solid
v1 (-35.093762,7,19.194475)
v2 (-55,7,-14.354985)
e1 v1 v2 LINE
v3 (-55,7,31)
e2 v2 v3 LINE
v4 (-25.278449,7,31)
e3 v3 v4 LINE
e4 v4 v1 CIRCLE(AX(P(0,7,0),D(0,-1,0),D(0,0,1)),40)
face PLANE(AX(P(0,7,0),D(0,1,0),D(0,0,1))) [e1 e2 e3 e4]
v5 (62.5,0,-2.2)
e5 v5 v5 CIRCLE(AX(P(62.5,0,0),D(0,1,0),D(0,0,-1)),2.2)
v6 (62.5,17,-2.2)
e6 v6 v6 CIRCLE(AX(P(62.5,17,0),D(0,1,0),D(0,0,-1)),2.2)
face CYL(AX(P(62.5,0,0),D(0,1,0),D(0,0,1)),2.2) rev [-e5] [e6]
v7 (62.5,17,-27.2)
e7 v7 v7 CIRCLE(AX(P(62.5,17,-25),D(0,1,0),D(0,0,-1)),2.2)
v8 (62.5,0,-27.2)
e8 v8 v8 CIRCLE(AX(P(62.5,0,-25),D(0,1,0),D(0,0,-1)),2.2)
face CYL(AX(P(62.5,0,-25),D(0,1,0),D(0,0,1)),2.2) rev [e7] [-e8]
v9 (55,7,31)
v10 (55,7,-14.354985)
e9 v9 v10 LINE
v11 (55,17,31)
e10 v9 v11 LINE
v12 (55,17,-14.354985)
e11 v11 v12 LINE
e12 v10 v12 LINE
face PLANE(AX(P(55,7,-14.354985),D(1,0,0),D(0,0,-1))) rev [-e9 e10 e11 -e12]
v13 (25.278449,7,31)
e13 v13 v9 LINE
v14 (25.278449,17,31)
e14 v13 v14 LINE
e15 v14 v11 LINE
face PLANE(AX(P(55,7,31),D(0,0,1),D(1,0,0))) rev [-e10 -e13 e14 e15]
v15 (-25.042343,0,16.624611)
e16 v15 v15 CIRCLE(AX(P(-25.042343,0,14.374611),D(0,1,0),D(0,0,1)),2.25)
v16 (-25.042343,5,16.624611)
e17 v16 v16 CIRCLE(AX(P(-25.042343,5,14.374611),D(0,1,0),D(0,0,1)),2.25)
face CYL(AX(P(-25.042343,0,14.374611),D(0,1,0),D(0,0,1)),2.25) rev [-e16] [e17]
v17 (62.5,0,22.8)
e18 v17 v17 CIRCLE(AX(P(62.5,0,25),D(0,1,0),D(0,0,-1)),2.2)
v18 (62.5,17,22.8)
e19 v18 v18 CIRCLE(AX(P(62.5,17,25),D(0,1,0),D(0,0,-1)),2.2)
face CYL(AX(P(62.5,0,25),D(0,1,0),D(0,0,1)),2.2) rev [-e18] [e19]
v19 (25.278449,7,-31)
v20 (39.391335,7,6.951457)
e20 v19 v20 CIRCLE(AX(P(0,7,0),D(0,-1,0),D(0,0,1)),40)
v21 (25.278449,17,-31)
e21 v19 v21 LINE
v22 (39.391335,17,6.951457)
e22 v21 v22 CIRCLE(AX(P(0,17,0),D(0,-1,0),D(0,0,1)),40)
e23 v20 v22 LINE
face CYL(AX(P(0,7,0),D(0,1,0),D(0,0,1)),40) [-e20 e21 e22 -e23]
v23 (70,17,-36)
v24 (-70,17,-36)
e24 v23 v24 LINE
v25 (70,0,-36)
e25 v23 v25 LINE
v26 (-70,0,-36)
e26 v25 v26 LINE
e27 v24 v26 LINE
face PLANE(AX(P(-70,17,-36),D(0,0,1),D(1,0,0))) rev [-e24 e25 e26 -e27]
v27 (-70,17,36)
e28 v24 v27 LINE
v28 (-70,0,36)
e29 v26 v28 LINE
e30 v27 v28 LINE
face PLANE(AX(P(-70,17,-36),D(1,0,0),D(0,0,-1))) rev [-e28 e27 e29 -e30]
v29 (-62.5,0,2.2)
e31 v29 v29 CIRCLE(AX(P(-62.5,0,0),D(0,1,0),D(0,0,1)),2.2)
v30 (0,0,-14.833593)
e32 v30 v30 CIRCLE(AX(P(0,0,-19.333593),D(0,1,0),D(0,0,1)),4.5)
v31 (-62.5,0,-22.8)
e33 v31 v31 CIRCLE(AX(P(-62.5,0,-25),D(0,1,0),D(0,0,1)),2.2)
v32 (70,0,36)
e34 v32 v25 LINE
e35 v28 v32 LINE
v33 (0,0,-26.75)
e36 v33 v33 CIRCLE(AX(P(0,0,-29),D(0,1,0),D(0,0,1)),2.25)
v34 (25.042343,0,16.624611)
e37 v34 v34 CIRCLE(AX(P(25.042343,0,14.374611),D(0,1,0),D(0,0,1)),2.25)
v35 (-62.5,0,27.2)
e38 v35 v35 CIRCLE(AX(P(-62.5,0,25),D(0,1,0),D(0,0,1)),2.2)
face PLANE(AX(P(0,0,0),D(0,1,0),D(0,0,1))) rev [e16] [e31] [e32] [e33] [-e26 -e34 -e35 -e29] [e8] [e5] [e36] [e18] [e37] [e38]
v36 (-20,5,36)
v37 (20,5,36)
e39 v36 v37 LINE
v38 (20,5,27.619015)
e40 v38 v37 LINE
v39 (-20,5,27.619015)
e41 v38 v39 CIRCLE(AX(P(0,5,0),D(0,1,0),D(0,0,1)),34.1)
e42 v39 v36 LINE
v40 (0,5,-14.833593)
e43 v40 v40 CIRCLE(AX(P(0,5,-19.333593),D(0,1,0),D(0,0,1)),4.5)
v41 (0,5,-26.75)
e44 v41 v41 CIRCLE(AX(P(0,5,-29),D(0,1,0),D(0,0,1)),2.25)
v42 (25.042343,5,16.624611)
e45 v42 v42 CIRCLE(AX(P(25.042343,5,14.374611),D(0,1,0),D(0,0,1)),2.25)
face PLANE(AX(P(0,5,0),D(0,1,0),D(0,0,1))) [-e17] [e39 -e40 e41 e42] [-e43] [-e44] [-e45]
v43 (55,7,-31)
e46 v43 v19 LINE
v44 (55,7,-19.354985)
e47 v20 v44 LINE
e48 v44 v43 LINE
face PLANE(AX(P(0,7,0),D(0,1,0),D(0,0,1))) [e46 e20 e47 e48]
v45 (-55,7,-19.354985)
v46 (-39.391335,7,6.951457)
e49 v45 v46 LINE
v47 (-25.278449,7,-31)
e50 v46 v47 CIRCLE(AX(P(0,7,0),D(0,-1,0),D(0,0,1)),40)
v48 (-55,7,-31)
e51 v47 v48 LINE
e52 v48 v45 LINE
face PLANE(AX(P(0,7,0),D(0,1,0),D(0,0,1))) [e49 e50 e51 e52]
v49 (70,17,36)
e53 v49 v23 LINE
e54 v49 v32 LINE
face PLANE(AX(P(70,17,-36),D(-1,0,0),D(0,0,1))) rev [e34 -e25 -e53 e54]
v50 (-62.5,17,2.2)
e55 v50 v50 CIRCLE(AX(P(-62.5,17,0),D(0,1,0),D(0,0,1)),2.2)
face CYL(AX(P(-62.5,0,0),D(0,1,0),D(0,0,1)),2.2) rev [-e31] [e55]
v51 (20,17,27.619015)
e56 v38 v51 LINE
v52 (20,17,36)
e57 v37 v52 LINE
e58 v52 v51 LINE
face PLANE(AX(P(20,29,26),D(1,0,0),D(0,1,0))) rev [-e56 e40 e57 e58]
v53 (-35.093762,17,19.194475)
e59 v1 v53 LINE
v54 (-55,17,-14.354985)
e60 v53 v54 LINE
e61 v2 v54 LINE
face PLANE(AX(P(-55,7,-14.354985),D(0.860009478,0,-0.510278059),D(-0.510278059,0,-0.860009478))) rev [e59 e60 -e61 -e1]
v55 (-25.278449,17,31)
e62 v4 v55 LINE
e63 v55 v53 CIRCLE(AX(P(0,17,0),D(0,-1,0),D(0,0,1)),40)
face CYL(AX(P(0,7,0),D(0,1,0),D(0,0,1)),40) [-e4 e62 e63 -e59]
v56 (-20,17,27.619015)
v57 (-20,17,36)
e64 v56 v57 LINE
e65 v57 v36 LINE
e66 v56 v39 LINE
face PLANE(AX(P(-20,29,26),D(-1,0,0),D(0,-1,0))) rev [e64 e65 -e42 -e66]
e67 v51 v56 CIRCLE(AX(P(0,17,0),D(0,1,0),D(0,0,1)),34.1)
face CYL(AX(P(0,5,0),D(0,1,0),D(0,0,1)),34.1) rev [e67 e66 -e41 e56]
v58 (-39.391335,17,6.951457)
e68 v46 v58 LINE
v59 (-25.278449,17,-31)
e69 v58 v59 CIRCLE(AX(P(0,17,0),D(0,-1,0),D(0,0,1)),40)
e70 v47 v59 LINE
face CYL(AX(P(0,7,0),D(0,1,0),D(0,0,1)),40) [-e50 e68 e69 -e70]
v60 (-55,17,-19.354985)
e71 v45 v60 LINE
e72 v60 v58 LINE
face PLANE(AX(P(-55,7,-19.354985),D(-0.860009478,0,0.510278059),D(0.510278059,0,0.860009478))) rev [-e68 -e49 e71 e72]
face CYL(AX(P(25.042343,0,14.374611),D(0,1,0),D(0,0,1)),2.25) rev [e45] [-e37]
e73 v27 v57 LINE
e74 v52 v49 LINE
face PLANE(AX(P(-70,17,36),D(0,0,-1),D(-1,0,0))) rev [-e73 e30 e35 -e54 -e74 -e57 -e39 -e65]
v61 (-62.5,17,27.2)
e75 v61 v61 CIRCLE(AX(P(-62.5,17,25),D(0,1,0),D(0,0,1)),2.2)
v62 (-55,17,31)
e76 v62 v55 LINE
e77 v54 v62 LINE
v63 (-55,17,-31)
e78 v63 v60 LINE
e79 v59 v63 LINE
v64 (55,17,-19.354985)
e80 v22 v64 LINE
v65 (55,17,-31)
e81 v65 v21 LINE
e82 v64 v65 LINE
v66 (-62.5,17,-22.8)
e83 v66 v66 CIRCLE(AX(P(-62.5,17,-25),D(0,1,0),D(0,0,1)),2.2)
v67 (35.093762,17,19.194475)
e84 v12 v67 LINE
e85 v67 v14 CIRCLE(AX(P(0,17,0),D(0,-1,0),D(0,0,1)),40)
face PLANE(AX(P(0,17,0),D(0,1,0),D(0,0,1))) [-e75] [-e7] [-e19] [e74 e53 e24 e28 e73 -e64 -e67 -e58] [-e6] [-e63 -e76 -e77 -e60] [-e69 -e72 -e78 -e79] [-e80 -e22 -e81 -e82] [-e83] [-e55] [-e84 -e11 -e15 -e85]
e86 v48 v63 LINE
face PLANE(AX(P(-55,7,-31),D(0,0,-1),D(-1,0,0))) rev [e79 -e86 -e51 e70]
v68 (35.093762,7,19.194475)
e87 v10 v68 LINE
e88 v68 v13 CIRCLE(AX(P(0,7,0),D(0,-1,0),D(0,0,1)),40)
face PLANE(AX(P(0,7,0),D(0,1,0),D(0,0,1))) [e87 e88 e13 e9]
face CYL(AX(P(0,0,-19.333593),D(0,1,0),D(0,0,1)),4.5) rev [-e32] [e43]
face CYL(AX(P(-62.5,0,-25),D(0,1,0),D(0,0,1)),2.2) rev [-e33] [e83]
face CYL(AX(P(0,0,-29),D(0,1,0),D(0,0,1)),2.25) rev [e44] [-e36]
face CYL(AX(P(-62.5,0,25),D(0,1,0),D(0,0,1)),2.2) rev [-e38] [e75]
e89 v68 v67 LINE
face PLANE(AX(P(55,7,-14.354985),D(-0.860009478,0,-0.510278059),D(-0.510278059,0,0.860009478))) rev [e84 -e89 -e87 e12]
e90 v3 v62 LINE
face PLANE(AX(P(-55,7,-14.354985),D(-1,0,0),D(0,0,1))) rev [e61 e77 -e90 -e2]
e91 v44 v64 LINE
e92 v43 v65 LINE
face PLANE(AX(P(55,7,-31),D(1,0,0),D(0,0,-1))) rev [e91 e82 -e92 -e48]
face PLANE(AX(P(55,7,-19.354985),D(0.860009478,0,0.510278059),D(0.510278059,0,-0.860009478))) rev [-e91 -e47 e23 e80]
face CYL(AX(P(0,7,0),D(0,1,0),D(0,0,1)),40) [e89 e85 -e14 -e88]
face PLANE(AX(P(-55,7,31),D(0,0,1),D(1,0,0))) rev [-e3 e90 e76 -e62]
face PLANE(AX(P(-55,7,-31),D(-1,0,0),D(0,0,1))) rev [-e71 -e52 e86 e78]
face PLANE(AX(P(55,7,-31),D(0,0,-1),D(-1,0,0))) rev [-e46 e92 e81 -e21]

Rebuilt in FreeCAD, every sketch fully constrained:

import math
import FreeCAD as App
import Part
import Sketcher
from FreeCAD import Vector

doc = App.newDocument("Part")
params = doc.addObject("Spreadsheet::Sheet", "Params")
for row, (alias, value) in enumerate([
    ("sketch1_width", "140 mm"),
    ("sketch1_height", "72 mm"),
    ("pad1_length", "17 mm"),
    ("sketch2_diameter", "68.2 mm"),
    ("pocket1_length", "12 mm"),
    ("sketch3_width", "40 mm"),
    ("sketch3_height", "24 mm"),
    ("pocket2_length", "10 mm"),
    ("sketch4_diameter", "4.4 mm"),
    ("sketch5_diameter", "9 mm"),
    ("sketch5_diameter2", "4.5 mm"),
    ("sketch6_radius", "40 mm"),
    ("pocket5_length", "10 mm"),
], start=1):
    params.set(f"A{row}", alias)
    params.set(f"B{row}", "=" + value)
    params.setAlias(f"B{row}", alias)

body = doc.addObject("PartDesign::Body", "Body")

sketch1 = body.newObject("Sketcher::SketchObject", "Sketch")
sketch1.AttachmentSupport = (doc.getObject("XZ_Plane"), [""])
sketch1.MapMode = "FlatFace"
sketch1.addGeometry(Part.LineSegment(Vector(-70, -36, 0), Vector(-70, 36, 0)), False)
sketch1.addGeometry(Part.LineSegment(Vector(-70, 36, 0), Vector(70, 36, 0)), False)
sketch1.addGeometry(Part.LineSegment(Vector(70, 36, 0), Vector(70, -36, 0)), False)
sketch1.addGeometry(Part.LineSegment(Vector(70, -36, 0), Vector(-70, -36, 0)), False)
sketch1.addConstraint(Sketcher.Constraint("Coincident", 0, 2, 1, 1))
sketch1.addConstraint(Sketcher.Constraint("Coincident", 1, 2, 2, 1))
sketch1.addConstraint(Sketcher.Constraint("Coincident", 2, 2, 3, 1))
sketch1.addConstraint(Sketcher.Constraint("Coincident", 3, 2, 0, 1))
sketch1.addConstraint(Sketcher.Constraint("Vertical", 0))
sketch1.addConstraint(Sketcher.Constraint("Horizontal", 1))
sketch1.addConstraint(Sketcher.Constraint("Vertical", 2))
sketch1.addConstraint(Sketcher.Constraint("Horizontal", 3))
sketch1.addConstraint(Sketcher.Constraint("Symmetric", 0, 2, 2, 2, -1, 1))
sketch1.addConstraint(Sketcher.Constraint("DistanceX", 1, 1, 1, 2, 140.0))
sketch1.addConstraint(Sketcher.Constraint("DistanceY", 0, 1, 0, 2, 72.0))
sketch1.setExpression("Constraints[9]", "Params.sketch1_width")
sketch1.setExpression("Constraints[10]", "Params.sketch1_height")
pad1 = body.newObject("PartDesign::Pad", "Pad")
pad1.Profile = sketch1
pad1.setExpression("Length", "Params.pad1_length")
pad1.Reversed = True

sketch2 = body.newObject("Sketcher::SketchObject", "Sketch001")
sketch2.AttachmentSupport = (doc.getObject("XZ_Plane"), [""])
sketch2.MapMode = "FlatFace"
sketch2.AttachmentOffset = App.Placement(Vector(0, 0, -17), App.Rotation())
sketch2.addGeometry(Part.Circle(Vector(0, 0, 0), Vector(0, 0, 1), 34.1), False)
sketch2.addConstraint(Sketcher.Constraint("Coincident", 0, 3, -1, 1))
sketch2.addConstraint(Sketcher.Constraint("Diameter", 0, 68.2))
sketch2.setExpression("Constraints[1]", "Params.sketch2_diameter")
pocket1 = body.newObject("PartDesign::Pocket", "Pocket")
pocket1.Profile = sketch2
pocket1.setExpression("Length", "Params.pocket1_length")
pocket1.Reversed = True

sketch3 = body.newObject("Sketcher::SketchObject", "Sketch002")
sketch3.AttachmentSupport = (doc.getObject("XY_Plane"), [""])
sketch3.MapMode = "FlatFace"
sketch3.AttachmentOffset = App.Placement(Vector(0, 0, 36), App.Rotation())
sketch3.addGeometry(Part.LineSegment(Vector(-20, 29, 0), Vector(-20, 5, 0)), False)
sketch3.addGeometry(Part.LineSegment(Vector(-20, 5, 0), Vector(20, 5, 0)), False)
sketch3.addGeometry(Part.LineSegment(Vector(20, 5, 0), Vector(20, 29, 0)), False)
sketch3.addGeometry(Part.LineSegment(Vector(20, 29, 0), Vector(-20, 29, 0)), False)
sketch3.addConstraint(Sketcher.Constraint("Coincident", 0, 2, 1, 1))
sketch3.addConstraint(Sketcher.Constraint("Coincident", 1, 2, 2, 1))
sketch3.addConstraint(Sketcher.Constraint("Coincident", 2, 2, 3, 1))
sketch3.addConstraint(Sketcher.Constraint("Coincident", 3, 2, 0, 1))
sketch3.addConstraint(Sketcher.Constraint("Vertical", 0))
sketch3.addConstraint(Sketcher.Constraint("Horizontal", 1))
sketch3.addConstraint(Sketcher.Constraint("Vertical", 2))
sketch3.addConstraint(Sketcher.Constraint("Horizontal", 3))
sketch3.addConstraint(Sketcher.Constraint("DistanceX", 1, 1, 1, 2, 40.0))
sketch3.addConstraint(Sketcher.Constraint("DistanceY", 0, 2, 0, 1, 24.0))
sketch3.addConstraint(Sketcher.Constraint("DistanceX", 0, 2, -1, 1, 20.0))
sketch3.addConstraint(Sketcher.Constraint("DistanceY", -1, 1, 0, 2, 5.0))
sketch3.setExpression("Constraints[8]", "Params.sketch3_width")
sketch3.setExpression("Constraints[9]", "Params.sketch3_height")
pocket2 = body.newObject("PartDesign::Pocket", "Pocket001")
pocket2.Profile = sketch3
pocket2.setExpression("Length", "Params.pocket2_length")

sketch4 = body.newObject("Sketcher::SketchObject", "Sketch003")
sketch4.AttachmentSupport = (doc.getObject("XZ_Plane"), [""])
sketch4.MapMode = "FlatFace"
sketch4.AttachmentOffset = App.Placement(Vector(0, 0, -17), App.Rotation())
sketch4.addGeometry(Part.Circle(Vector(-62.5, -25, 0), Vector(0, 0, 1), 2.2), False)
sketch4.addGeometry(Part.Circle(Vector(-62.5, 0, 0), Vector(0, 0, 1), 2.2), False)
sketch4.addGeometry(Part.Circle(Vector(-62.5, 25, 0), Vector(0, 0, 1), 2.2), False)
sketch4.addGeometry(Part.Circle(Vector(62.5, 25, 0), Vector(0, 0, 1), 2.2), False)
sketch4.addGeometry(Part.Circle(Vector(62.5, 0, 0), Vector(0, 0, 1), 2.2), False)
sketch4.addGeometry(Part.Circle(Vector(62.5, -25, 0), Vector(0, 0, 1), 2.2), False)
sketch4.addConstraint(Sketcher.Constraint("Equal", 0, 1))
sketch4.addConstraint(Sketcher.Constraint("Equal", 1, 2))
sketch4.addConstraint(Sketcher.Constraint("Equal", 2, 3))
sketch4.addConstraint(Sketcher.Constraint("Equal", 3, 4))
sketch4.addConstraint(Sketcher.Constraint("Equal", 4, 5))
sketch4.addConstraint(Sketcher.Constraint("Symmetric", 0, 3, 3, 3, -1, 1))
sketch4.addConstraint(Sketcher.Constraint("Symmetric", 1, 3, 4, 3, -1, 1))
sketch4.addConstraint(Sketcher.Constraint("Symmetric", 2, 3, 5, 3, -1, 1))
sketch4.addConstraint(Sketcher.Constraint("Symmetric", 2, 3, 3, 3, -2))
sketch4.addConstraint(Sketcher.Constraint("PointOnObject", 1, 3, -1))
sketch4.addConstraint(Sketcher.Constraint("Vertical", 0, 3, 1, 3))
sketch4.addConstraint(Sketcher.Constraint("Diameter", 0, 4.4))
sketch4.addConstraint(Sketcher.Constraint("DistanceY", 0, 3, -1, 1, 25.0))
sketch4.addConstraint(Sketcher.Constraint("DistanceX", 2, 3, 3, 3, 125.0))
sketch4.setExpression("Constraints[11]", "Params.sketch4_diameter")
pocket3 = body.newObject("PartDesign::Pocket", "Pocket002")
pocket3.Profile = sketch4
pocket3.Type = "ThroughAll"
pocket3.Reversed = True

sketch5 = body.newObject("Sketcher::SketchObject", "Sketch004")
sketch5.AttachmentSupport = (doc.getObject("XZ_Plane"), [""])
sketch5.MapMode = "FlatFace"
sketch5.AttachmentOffset = App.Placement(Vector(0, 0, -5), App.Rotation())
sketch5.addGeometry(Part.Circle(Vector(0, -29, 0), Vector(0, 0, 1), 2.25), False)
sketch5.addGeometry(Part.Circle(Vector(25.042343, 14.374611, 0), Vector(0, 0, 1), 2.25), False)
sketch5.addGeometry(Part.Circle(Vector(-25.042343, 14.374611, 0), Vector(0, 0, 1), 2.25), False)
sketch5.addGeometry(Part.Circle(Vector(0, -19.333593, 0), Vector(0, 0, 1), 4.5), False)
sketch5.addConstraint(Sketcher.Constraint("Equal", 0, 1))
sketch5.addConstraint(Sketcher.Constraint("Equal", 1, 2))
sketch5.addConstraint(Sketcher.Constraint("Symmetric", 1, 3, 2, 3, -2))
sketch5.addConstraint(Sketcher.Constraint("PointOnObject", 0, 3, -2))
sketch5.addConstraint(Sketcher.Constraint("PointOnObject", 3, 3, -2))
sketch5.addConstraint(Sketcher.Constraint("Diameter", 3, 9.0))
sketch5.addConstraint(Sketcher.Constraint("Diameter", 0, 4.5))
sketch5.addConstraint(Sketcher.Constraint("DistanceY", 0, 3, -1, 1, 29.0))
sketch5.addConstraint(Sketcher.Constraint("DistanceY", -1, 1, 1, 3, 14.374611))
sketch5.addConstraint(Sketcher.Constraint("DistanceX", -1, 1, 1, 3, 25.042343))
sketch5.addConstraint(Sketcher.Constraint("DistanceY", 3, 3, -1, 1, 19.333593))
sketch5.setExpression("Constraints[5]", "Params.sketch5_diameter")
sketch5.setExpression("Constraints[6]", "Params.sketch5_diameter2")
pocket4 = body.newObject("PartDesign::Pocket", "Pocket003")
pocket4.Profile = sketch5
pocket4.Type = "ThroughAll"
pocket4.Reversed = True

sketch6 = body.newObject("Sketcher::SketchObject", "Sketch005")
sketch6.AttachmentSupport = (doc.getObject("XZ_Plane"), [""])
sketch6.MapMode = "FlatFace"
sketch6.AttachmentOffset = App.Placement(Vector(0, 0, -17), App.Rotation())
sketch6.addGeometry(Part.LineSegment(Vector(-25.278449, -31, 0), Vector(-55, -31, 0)), False)
sketch6.addGeometry(Part.LineSegment(Vector(-55, -31, 0), Vector(-55, -19.354985, 0)), False)
sketch6.addGeometry(Part.LineSegment(Vector(-55, -19.354985, 0), Vector(-39.391335, 6.951457, 0)), False)
sketch6.addGeometry(Part.ArcOfCircle(Part.Circle(Vector(0, 0, 0), Vector(0, 0, 1), 40), math.radians(169.991957), math.radians(230.805033)), False)
sketch6.addGeometry(Part.LineSegment(Vector(-55, 31, 0), Vector(-25.278449, 31, 0)), False)
sketch6.addGeometry(Part.ArcOfCircle(Part.Circle(Vector(0, 0, 0), Vector(0, 0, 1), 40), math.radians(129.194967), math.radians(151.323618)), False)
sketch6.addGeometry(Part.LineSegment(Vector(-35.093762, 19.194475, 0), Vector(-55, -14.354985, 0)), False)
sketch6.addGeometry(Part.LineSegment(Vector(-55, -14.354985, 0), Vector(-55, 31, 0)), False)
sketch6.addGeometry(Part.LineSegment(Vector(25.278449, 31, 0), Vector(55, 31, 0)), False)
sketch6.addGeometry(Part.LineSegment(Vector(55, 31, 0), Vector(55, -14.354985, 0)), False)
sketch6.addGeometry(Part.LineSegment(Vector(55, -14.354985, 0), Vector(35.093762, 19.194475, 0)), False)
sketch6.addGeometry(Part.ArcOfCircle(Part.Circle(Vector(0, 0, 0), Vector(0, 0, 1), 40), math.radians(28.676382), math.radians(50.805033)), False)
sketch6.addGeometry(Part.LineSegment(Vector(55, -19.354985, 0), Vector(55, -31, 0)), False)
sketch6.addGeometry(Part.LineSegment(Vector(55, -31, 0), Vector(25.278449, -31, 0)), False)
sketch6.addGeometry(Part.ArcOfCircle(Part.Circle(Vector(0, 0, 0), Vector(0, 0, 1), 40), math.radians(-50.805033), math.radians(10.008043)), False)
sketch6.addGeometry(Part.LineSegment(Vector(39.391335, 6.951457, 0), Vector(55, -19.354985, 0)), False)
sketch6.addConstraint(Sketcher.Constraint("Coincident", 0, 2, 1, 1))
sketch6.addConstraint(Sketcher.Constraint("Coincident", 1, 2, 2, 1))
sketch6.addConstraint(Sketcher.Constraint("Coincident", 2, 2, 3, 1))
sketch6.addConstraint(Sketcher.Constraint("Coincident", 3, 2, 0, 1))
sketch6.addConstraint(Sketcher.Constraint("Coincident", 4, 2, 5, 1))
sketch6.addConstraint(Sketcher.Constraint("Coincident", 5, 2, 6, 1))
sketch6.addConstraint(Sketcher.Constraint("Coincident", 6, 2, 7, 1))
sketch6.addConstraint(Sketcher.Constraint("Coincident", 7, 2, 4, 1))
sketch6.addConstraint(Sketcher.Constraint("Coincident", 8, 2, 9, 1))
sketch6.addConstraint(Sketcher.Constraint("Coincident", 9, 2, 10, 1))
sketch6.addConstraint(Sketcher.Constraint("Coincident", 10, 2, 11, 1))
sketch6.addConstraint(Sketcher.Constraint("Coincident", 11, 2, 8, 1))
sketch6.addConstraint(Sketcher.Constraint("Coincident", 12, 2, 13, 1))
sketch6.addConstraint(Sketcher.Constraint("Coincident", 13, 2, 14, 1))
sketch6.addConstraint(Sketcher.Constraint("Coincident", 14, 2, 15, 1))
sketch6.addConstraint(Sketcher.Constraint("Coincident", 15, 2, 12, 1))
sketch6.addConstraint(Sketcher.Constraint("Horizontal", 0))
sketch6.addConstraint(Sketcher.Constraint("Vertical", 1))
sketch6.addConstraint(Sketcher.Constraint("Horizontal", 4))
sketch6.addConstraint(Sketcher.Constraint("Vertical", 7))
sketch6.addConstraint(Sketcher.Constraint("Horizontal", 8))
sketch6.addConstraint(Sketcher.Constraint("Vertical", 9))
sketch6.addConstraint(Sketcher.Constraint("Vertical", 12))
sketch6.addConstraint(Sketcher.Constraint("Horizontal", 13))
sketch6.addConstraint(Sketcher.Constraint("Coincident", 3, 3, -1, 1))
sketch6.addConstraint(Sketcher.Constraint("Coincident", 5, 3, -1, 1))
sketch6.addConstraint(Sketcher.Constraint("Coincident", 11, 3, -1, 1))
sketch6.addConstraint(Sketcher.Constraint("Coincident", 14, 3, -1, 1))
sketch6.addConstraint(Sketcher.Constraint("Equal", 3, 5))
sketch6.addConstraint(Sketcher.Constraint("Equal", 5, 11))
sketch6.addConstraint(Sketcher.Constraint("Equal", 11, 14))
sketch6.addConstraint(Sketcher.Constraint("Symmetric", 0, 2, 8, 2, -1, 1))
sketch6.addConstraint(Sketcher.Constraint("Symmetric", 7, 2, 12, 2, -1, 1))
sketch6.addConstraint(Sketcher.Constraint("Symmetric", 7, 2, 8, 2, -2))
sketch6.addConstraint(Sketcher.Constraint("Parallel", 2, 6))
sketch6.addConstraint(Sketcher.Constraint("Parallel", 10, 15))
sketch6.addConstraint(Sketcher.Constraint("Horizontal", 6, 2, 9, 2))
sketch6.addConstraint(Sketcher.Constraint("Horizontal", 5, 2, 10, 2))
sketch6.addConstraint(Sketcher.Constraint("Horizontal", 2, 2, 14, 2))
sketch6.addConstraint(Sketcher.Constraint("Radius", 3, 40.0))
sketch6.addConstraint(Sketcher.Constraint("DistanceX", 0, 2, -1, 1, 55.0))
sketch6.addConstraint(Sketcher.Constraint("DistanceY", 0, 2, -1, 1, 31.0))
sketch6.addConstraint(Sketcher.Constraint("DistanceY", 1, 2, 6, 2, 5.0))
sketch6.addConstraint(Sketcher.Constraint("Distance", 2, 30.588549))
sketch6.addConstraint(Sketcher.Constraint("Distance", 6, 39.010571))
sketch6.setExpression("Constraints[39]", "Params.sketch6_radius")
pocket5 = body.newObject("PartDesign::Pocket", "Pocket004")
pocket5.Profile = sketch6
pocket5.setExpression("Length", "Params.pocket5_length")
pocket5.Reversed = True

doc.recompute()
